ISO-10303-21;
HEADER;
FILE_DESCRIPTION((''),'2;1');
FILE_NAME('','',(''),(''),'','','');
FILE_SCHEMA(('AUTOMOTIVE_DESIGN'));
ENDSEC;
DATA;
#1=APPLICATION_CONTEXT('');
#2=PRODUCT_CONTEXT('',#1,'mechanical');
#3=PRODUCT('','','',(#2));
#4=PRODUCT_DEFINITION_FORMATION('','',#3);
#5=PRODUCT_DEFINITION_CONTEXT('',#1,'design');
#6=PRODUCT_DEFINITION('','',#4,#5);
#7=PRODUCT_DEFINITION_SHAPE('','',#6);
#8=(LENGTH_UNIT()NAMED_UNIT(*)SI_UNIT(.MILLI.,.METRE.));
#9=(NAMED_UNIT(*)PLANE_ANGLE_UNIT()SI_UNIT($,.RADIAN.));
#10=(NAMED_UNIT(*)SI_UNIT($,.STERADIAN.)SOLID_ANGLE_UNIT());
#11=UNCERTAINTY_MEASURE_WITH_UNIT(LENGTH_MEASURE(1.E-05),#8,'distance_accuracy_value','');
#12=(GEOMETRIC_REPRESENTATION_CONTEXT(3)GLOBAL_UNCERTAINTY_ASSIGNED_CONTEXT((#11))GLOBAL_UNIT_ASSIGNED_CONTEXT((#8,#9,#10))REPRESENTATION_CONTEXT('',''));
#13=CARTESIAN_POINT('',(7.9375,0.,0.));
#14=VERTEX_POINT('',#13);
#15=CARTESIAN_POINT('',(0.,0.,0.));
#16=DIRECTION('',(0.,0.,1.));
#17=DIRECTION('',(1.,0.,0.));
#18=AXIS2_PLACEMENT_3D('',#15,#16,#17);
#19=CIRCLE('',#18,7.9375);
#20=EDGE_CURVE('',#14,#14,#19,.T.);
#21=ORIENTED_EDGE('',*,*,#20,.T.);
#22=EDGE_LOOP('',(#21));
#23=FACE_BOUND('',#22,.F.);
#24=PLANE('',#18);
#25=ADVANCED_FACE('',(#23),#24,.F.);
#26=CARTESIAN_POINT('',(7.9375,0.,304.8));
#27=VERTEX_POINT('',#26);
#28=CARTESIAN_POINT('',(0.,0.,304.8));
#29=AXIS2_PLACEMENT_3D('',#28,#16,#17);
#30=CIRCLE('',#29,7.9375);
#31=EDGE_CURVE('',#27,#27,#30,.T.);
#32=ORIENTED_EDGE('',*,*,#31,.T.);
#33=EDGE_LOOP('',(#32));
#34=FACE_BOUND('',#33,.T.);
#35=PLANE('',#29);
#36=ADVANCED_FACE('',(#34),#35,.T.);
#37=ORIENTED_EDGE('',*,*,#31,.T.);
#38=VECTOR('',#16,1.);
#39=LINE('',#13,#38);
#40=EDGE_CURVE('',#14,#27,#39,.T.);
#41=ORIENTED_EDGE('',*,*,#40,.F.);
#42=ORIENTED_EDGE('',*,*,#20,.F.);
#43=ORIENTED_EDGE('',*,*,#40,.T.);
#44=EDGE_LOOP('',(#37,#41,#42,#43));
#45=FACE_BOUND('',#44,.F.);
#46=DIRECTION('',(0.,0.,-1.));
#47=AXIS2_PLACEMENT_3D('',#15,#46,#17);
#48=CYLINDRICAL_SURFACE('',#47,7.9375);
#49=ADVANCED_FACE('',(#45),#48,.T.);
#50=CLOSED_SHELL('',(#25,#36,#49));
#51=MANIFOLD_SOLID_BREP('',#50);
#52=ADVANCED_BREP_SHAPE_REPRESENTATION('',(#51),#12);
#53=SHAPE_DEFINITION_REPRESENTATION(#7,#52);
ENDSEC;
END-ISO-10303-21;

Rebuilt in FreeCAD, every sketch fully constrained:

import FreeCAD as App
import Part
import Sketcher
Q = App.Units.Quantity

doc = App.newDocument("Part")
body = doc.addObject("PartDesign::Body", "Body")

# Sketch on XY plane
sketch1 = body.newObject("Sketcher::SketchObject", "Sketch")
sketch1.AttachmentSupport = (doc.getObject("XY_Plane"), [""])
sketch1.MapMode = "FlatFace"
sketch1.addGeometry(Part.Circle(App.Vector(0, 0, 0), App.Vector(0, 0, 1), 8), False)
sketch1.addConstraint([
    Sketcher.Constraint("Coincident", 0, 3, -1, 1),
    Sketcher.Constraint("Diameter", 0, Q("0.625 in")),
])
pad1 = body.newObject("PartDesign::Pad", "Pad")
pad1.Profile = sketch1
pad1.Length = Q("12 in")

doc.recompute()
